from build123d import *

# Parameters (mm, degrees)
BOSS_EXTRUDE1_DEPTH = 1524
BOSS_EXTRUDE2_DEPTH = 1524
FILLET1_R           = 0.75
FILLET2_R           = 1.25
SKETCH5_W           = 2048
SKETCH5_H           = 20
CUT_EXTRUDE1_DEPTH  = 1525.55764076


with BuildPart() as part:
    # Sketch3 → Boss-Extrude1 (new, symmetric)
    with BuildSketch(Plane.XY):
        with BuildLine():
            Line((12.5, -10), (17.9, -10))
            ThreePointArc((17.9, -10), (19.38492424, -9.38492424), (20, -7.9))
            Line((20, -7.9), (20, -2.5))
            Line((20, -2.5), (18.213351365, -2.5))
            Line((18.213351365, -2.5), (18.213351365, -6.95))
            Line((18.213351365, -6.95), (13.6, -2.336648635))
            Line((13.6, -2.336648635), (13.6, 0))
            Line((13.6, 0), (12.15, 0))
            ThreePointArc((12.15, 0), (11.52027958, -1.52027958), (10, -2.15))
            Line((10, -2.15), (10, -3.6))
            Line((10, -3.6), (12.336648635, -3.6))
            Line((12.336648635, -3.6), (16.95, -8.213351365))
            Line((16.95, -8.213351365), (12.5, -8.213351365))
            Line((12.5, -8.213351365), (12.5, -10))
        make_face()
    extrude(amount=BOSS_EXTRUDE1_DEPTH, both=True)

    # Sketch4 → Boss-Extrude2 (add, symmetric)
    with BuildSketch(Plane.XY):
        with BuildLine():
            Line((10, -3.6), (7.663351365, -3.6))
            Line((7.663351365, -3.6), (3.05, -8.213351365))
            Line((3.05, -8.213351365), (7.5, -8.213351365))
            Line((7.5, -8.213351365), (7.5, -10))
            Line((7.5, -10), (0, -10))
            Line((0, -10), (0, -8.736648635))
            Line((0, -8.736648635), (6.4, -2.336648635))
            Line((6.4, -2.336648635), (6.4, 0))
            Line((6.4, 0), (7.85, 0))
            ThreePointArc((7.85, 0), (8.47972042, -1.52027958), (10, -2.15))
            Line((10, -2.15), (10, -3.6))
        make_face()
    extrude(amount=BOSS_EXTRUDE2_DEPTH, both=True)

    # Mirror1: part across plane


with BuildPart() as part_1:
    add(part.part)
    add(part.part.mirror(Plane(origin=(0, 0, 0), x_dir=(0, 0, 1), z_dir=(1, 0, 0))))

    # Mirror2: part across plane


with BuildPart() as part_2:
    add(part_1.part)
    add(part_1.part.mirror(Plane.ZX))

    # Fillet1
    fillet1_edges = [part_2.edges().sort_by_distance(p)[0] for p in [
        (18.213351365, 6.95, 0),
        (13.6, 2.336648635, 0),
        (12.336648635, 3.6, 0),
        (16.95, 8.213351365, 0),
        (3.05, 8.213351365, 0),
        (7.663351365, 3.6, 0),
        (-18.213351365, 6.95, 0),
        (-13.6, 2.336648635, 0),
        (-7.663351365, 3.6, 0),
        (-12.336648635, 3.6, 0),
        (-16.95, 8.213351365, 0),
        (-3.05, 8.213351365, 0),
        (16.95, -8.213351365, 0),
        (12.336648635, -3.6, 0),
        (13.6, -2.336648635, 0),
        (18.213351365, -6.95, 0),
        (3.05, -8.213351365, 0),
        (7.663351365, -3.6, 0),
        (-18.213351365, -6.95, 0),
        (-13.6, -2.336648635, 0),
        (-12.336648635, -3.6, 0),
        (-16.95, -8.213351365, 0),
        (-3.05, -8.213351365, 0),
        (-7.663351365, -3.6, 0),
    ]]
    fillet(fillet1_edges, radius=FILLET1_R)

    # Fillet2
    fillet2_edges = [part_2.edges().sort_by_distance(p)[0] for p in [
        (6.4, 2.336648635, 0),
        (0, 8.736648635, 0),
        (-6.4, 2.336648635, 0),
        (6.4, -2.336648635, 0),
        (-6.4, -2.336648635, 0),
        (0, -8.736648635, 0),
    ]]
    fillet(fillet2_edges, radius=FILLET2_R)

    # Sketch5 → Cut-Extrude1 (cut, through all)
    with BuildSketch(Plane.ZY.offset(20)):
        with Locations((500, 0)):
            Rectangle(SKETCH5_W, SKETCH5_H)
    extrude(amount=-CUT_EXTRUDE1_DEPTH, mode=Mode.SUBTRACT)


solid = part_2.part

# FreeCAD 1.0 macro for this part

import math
import FreeCAD as App
import Part
import Sketcher
Q = App.Units.Quantity


def edges_at(feature, points):
    """Names of the edges that pass closest to the given points."""
    edges = feature.Shape.Edges
    near = lambda p: min(range(len(edges)), key=lambda i: edges[i].distToShape(Part.Vertex(*p))[0])
    return sorted({f"Edge{near(p) + 1}" for p in points})


def add_polygon(sketch, points):
    """Adds a closed chain of lines whose ends are joined by coincident constraints."""
    first, n = sketch.GeometryCount, len(points)
    for a, b in zip(points, points[1:] + points[:1]):
        sketch.addGeometry(Part.LineSegment(App.Vector(*a, 0), App.Vector(*b, 0)), False)
    for i in range(n):
        sketch.addConstraint(Sketcher.Constraint("Coincident", first + i, 2, first + (i + 1) % n, 1))

doc = App.newDocument("Part")
body = doc.addObject("PartDesign::Body", "Body")

sketch1 = body.newObject("Sketcher::SketchObject", "Sketch")
sketch1.AttachmentSupport = (doc.getObject("XY_Plane"), [""])
sketch1.MapMode = "FlatFace"
sketch1.addGeometry([
    Part.LineSegment(App.Vector(12.5, -10, 0), App.Vector(17.9, -10, 0)),
    Part.ArcOfCircle(Part.Circle(App.Vector(17.9, -7.9, 0), App.Vector(0, 0, 1), 2.1), math.radians(-90), math.radians(0)),
    Part.LineSegment(App.Vector(20, -7.9, 0), App.Vector(20, -2.5, 0)),
    Part.LineSegment(App.Vector(20, -2.5, 0), App.Vector(18.2, -2.5, 0)),
    Part.LineSegment(App.Vector(18.2, -2.5, 0), App.Vector(18.2, -7, 0)),
    Part.LineSegment(App.Vector(18.2, -7, 0), App.Vector(13.6, -2.3, 0)),
    Part.LineSegment(App.Vector(13.6, -2.3, 0), App.Vector(13.6, 0, 0)),
    Part.LineSegment(App.Vector(13.6, 0, 0), App.Vector(12.2, 0, 0)),
    Part.ArcOfCircle(Part.Circle(App.Vector(10, 0, 0), App.Vector(0, 0, 1), 2.1), math.radians(-90), math.radians(0)),
    Part.LineSegment(App.Vector(10, -2.1, 0), App.Vector(10, -3.6, 0)),
    Part.LineSegment(App.Vector(10, -3.6, 0), App.Vector(12.3, -3.6, 0)),
    Part.LineSegment(App.Vector(12.3, -3.6, 0), App.Vector(16.9, -8.2, 0)),
    Part.LineSegment(App.Vector(16.9, -8.2, 0), App.Vector(12.5, -8.2, 0)),
    Part.LineSegment(App.Vector(12.5, -8.2, 0), App.Vector(12.5, -10, 0)),
], False)
sketch1.addConstraint([
    Sketcher.Constraint("Tangent", 0, 2, 1, 1),
    Sketcher.Constraint("Tangent", 1, 2, 2, 1),
    Sketcher.Constraint("Coincident", 2, 2, 3, 1),
    Sketcher.Constraint("Coincident", 3, 2, 4, 1),
    Sketcher.Constraint("Coincident", 4, 2, 5, 1),
    Sketcher.Constraint("Coincident", 5, 2, 6, 1),
    Sketcher.Constraint("Coincident", 6, 2, 7, 1),
    Sketcher.Constraint("Coincident", 7, 2, 8, 2),
    Sketcher.Constraint("Coincident", 8, 1, 9, 1),
    Sketcher.Constraint("Coincident", 9, 2, 10, 1),
    Sketcher.Constraint("Coincident", 10, 2, 11, 1),
    Sketcher.Constraint("Coincident", 11, 2, 12, 1),
    Sketcher.Constraint("Coincident", 12, 2, 13, 1),
    Sketcher.Constraint("Coincident", 13, 2, 0, 1),
    Sketcher.Constraint("Horizontal", 0),
    Sketcher.Constraint("Vertical", 2),
    Sketcher.Constraint("Horizontal", 3),
    Sketcher.Constraint("Vertical", 4),
    Sketcher.Constraint("Vertical", 6),
    Sketcher.Constraint("Horizontal", 7),
    Sketcher.Constraint("Vertical", 9),
    Sketcher.Constraint("Horizontal", 10),
    Sketcher.Constraint("Horizontal", 12),
    Sketcher.Constraint("Vertical", 13),
    Sketcher.Constraint("PointOnObject", 8, 3, -1),
    Sketcher.Constraint("PointOnObject", 6, 2, -1),
    Sketcher.Constraint("Parallel", 5, 11),
    Sketcher.Constraint("Equal", 0, 2),
    Sketcher.Constraint("Equal", 12, 4),
    Sketcher.Constraint("Equal", 10, 6),
    Sketcher.Constraint("Equal", 7, 9),
    Sketcher.Constraint("Equal", 3, 13),
    Sketcher.Constraint("Equal", 5, 11),
    Sketcher.Constraint("Radius", 1, 2.1),
    Sketcher.Constraint("Angle", 5, Q("135 deg")),
    Sketcher.Constraint("Radius", 8, 2.15),
    Sketcher.Constraint("DistanceX", 0, 1, 0, 2, 5.4),
    Sketcher.Constraint("DistanceX", -1, 1, 8, 3, 10.0),
    Sketcher.Constraint("DistanceY", 0, 2, -1, 1, 10.0),
    Sketcher.Constraint("DistanceX", 7, 2, 7, 1, 1.45),
    Sketcher.Constraint("DistanceX", 12, 2, 12, 1, 4.45),
    Sketcher.Constraint("DistanceX", 3, 2, 3, 1, 1.786649),
])
pad1 = body.newObject("PartDesign::Pad", "Pad")
pad1.Profile = sketch1
pad1.Length = 3048
pad1.Midplane = True

sketch2 = body.newObject("Sketcher::SketchObject", "Sketch001")
sketch2.AttachmentSupport = (doc.getObject("XY_Plane"), [""])
sketch2.MapMode = "FlatFace"
sketch2.addGeometry([
    Part.LineSegment(App.Vector(7.7, -3.6, 0), App.Vector(10, -3.6, 0)),
    Part.LineSegment(App.Vector(10, -3.6, 0), App.Vector(10, -2.1, 0)),
    Part.ArcOfCircle(Part.Circle(App.Vector(10, 0, 0), App.Vector(0, 0, 1), 2.1), math.radians(180), math.radians(270)),
    Part.LineSegment(App.Vector(7.8, 0, 0), App.Vector(6.4, 0, 0)),
    Part.LineSegment(App.Vector(6.4, 0, 0), App.Vector(6.4, -2.3, 0)),
    Part.LineSegment(App.Vector(6.4, -2.3, 0), App.Vector(0, -8.7, 0)),
    Part.LineSegment(App.Vector(0, -8.7, 0), App.Vector(0, -10, 0)),
    Part.LineSegment(App.Vector(0, -10, 0), App.Vector(7.5, -10, 0)),
    Part.LineSegment(App.Vector(7.5, -10, 0), App.Vector(7.5, -8.2, 0)),
    Part.LineSegment(App.Vector(7.5, -8.2, 0), App.Vector(3, -8.2, 0)),
    Part.LineSegment(App.Vector(3, -8.2, 0), App.Vector(7.7, -3.6, 0)),
], False)
sketch2.addConstraint([
    Sketcher.Constraint("Coincident", 0, 2, 1, 1),
    Sketcher.Constraint("Coincident", 1, 2, 2, 2),
    Sketcher.Constraint("Coincident", 2, 1, 3, 1),
    Sketcher.Constraint("Coincident", 3, 2, 4, 1),
    Sketcher.Constraint("Coincident", 4, 2, 5, 1),
    Sketcher.Constraint("Coincident", 5, 2, 6, 1),
    Sketcher.Constraint("Coincident", 6, 2, 7, 1),
    Sketcher.Constraint("Coincident", 7, 2, 8, 1),
    Sketcher.Constraint("Coincident", 8, 2, 9, 1),
    Sketcher.Constraint("Coincident", 9, 2, 10, 1),
    Sketcher.Constraint("Coincident", 10, 2, 0, 1),
    Sketcher.Constraint("Horizontal", 0),
    Sketcher.Constraint("Vertical", 1),
    Sketcher.Constraint("Horizontal", 3),
    Sketcher.Constraint("Vertical", 4),
    Sketcher.Constraint("Vertical", 6),
    Sketcher.Constraint("Horizontal", 7),
    Sketcher.Constraint("Vertical", 8),
    Sketcher.Constraint("Horizontal", 9),
    Sketcher.Constraint("PointOnObject", 2, 3, -1),
    Sketcher.Constraint("PointOnObject", 2, 1, -1),
    Sketcher.Constraint("PointOnObject", 5, 2, -2),
    Sketcher.Constraint("Parallel", 5, 10),
    Sketcher.Constraint("Vertical", 2, 3, 0, 2),
    Sketcher.Constraint("Equal", 3, 1),
    Sketcher.Constraint("Equal", 0, 4),
    Sketcher.Constraint("Angle", 5, Q("-135 deg")),
    Sketcher.Constraint("Radius", 2, 2.15),
    Sketcher.Constraint("DistanceX", 7, 1, 7, 2, 7.5),
    Sketcher.Constraint("DistanceX", -1, 1, 2, 3, 10.0),
    Sketcher.Constraint("DistanceY", 6, 2, -1, 1, 10.0),
    Sketcher.Constraint("DistanceX", 3, 2, 3, 1, 1.45),
    Sketcher.Constraint("DistanceX", 9, 2, 9, 1, 4.45),
    Sketcher.Constraint("DistanceX", 0, 1, 0, 2, 2.336649),
])
pad2 = body.newObject("PartDesign::Pad", "Pad001")
pad2.Profile = sketch2
pad2.Length = 3048
pad2.Midplane = True
body2 = doc.addObject("PartDesign::Body", "Body001")
doc.recompute()

body2.BaseFeature = body
doc.recompute()

mirroring = doc.addObject("Part::Mirroring", "Mirroring")
mirroring.Source = body
mirroring.Base = App.Vector(0, 0, 0)
mirroring.Normal = App.Vector(1, 0, 0)
body3 = doc.addObject("PartDesign::Body", "Body002")
body3.BaseFeature = mirroring
boolean = body2.newObject("PartDesign::Boolean", "Boolean")
boolean.Type = "Fuse"
boolean.addObjects([body3])
doc.recompute()
body4 = doc.addObject("PartDesign::Body", "Body003")
doc.recompute()

body4.BaseFeature = body2
doc.recompute()

mirroring2 = doc.addObject("Part::Mirroring", "Mirroring001")
mirroring2.Source = body2
mirroring2.Base = App.Vector(0, 0, 0)
mirroring2.Normal = App.Vector(0, 1, 0)
body5 = doc.addObject("PartDesign::Body", "Body004")
body5.BaseFeature = mirroring2
boolean2 = body4.newObject("PartDesign::Boolean", "Boolean001")
boolean2.Type = "Fuse"
boolean2.addObjects([body5])
doc.recompute()

fillet = body4.newObject("PartDesign::Fillet", "Fillet")
fillet.Base = (boolean2, edges_at(boolean2, [
    (18.213, 6.95, 0),
    (13.6, 2.337, 0),
    (12.337, 3.6, 0),
    (16.95, 8.213, 0),
    (3.05, 8.213, 0),
    (7.663, 3.6, 0),
    (-18.213, 6.95, 0),
    (-13.6, 2.337, 0),
    (-7.663, 3.6, 0),
    (-12.337, 3.6, 0),
    (-16.95, 8.213, 0),
    (-3.05, 8.213, 0),
    (16.95, -8.213, 0),
    (12.337, -3.6, 0),
    (13.6, -2.337, 0),
    (18.213, -6.95, 0),
    (3.05, -8.213, 0),
    (7.663, -3.6, 0),
    (-18.213, -6.95, 0),
    (-13.6, -2.337, 0),
    (-12.337, -3.6, 0),
    (-16.95, -8.213, 0),
    (-3.05, -8.213, 0),
    (-7.663, -3.6, 0),
]))
fillet.Radius = 0.75
doc.recompute()

fillet2 = body4.newObject("PartDesign::Fillet", "Fillet001")
fillet2.Base = (fillet, edges_at(fillet, [
    (6.4, 2.337, 0),
    (0, 8.737, 0),
    (-6.4, 2.337, 0),
    (6.4, -2.337, 0),
    (-6.4, -2.337, 0),
    (0, -8.737, 0),
]))
fillet2.Radius = 1.25

sketch3 = body4.newObject("Sketcher::SketchObject", "Sketch002")
sketch3.AttachmentSupport = (doc.getObject("YZ_Plane003"), [""])
sketch3.MapMode = "FlatFace"
sketch3.AttachmentOffset = App.Placement(App.Vector(0, 0, -20), App.Rotation())
add_polygon(sketch3, [(10, -524), (-10, -524), (-10, 1524), (10, 1524)])
sketch3.addConstraint([
    Sketcher.Constraint("Horizontal", 0),
    Sketcher.Constraint("Vertical", 1),
    Sketcher.Constraint("Horizontal", 2),
    Sketcher.Constraint("Vertical", 3),
    Sketcher.Constraint("DistanceX", 0, 2, 0, 1, 20.0),
    Sketcher.Constraint("DistanceY", 1, 1, 1, 2, 2048.0),
    Sketcher.Constraint("DistanceX", 0, 2, -1, 1, 10.0),
    Sketcher.Constraint("DistanceY", 0, 2, -1, 1, 524.0),
])
pocket1 = body4.newObject("PartDesign::Pocket", "Pocket")
pocket1.Profile = sketch3
pocket1.Type = "ThroughAll"
pocket1.Reversed = True
mirroring.Visibility = False
mirroring2.Visibility = False

doc.recompute()
